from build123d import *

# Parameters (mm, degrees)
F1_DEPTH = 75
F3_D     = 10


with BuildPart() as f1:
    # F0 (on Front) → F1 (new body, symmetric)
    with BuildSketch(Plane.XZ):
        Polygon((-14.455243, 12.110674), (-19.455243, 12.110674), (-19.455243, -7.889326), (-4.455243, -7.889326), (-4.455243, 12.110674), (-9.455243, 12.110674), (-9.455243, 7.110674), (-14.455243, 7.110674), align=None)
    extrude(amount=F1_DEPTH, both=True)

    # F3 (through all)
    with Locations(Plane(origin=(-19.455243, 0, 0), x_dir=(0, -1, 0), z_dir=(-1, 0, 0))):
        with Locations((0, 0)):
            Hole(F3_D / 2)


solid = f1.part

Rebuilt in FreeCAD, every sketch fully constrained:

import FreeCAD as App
import Part
import Sketcher

doc = App.newDocument("Part")
body = doc.addObject("PartDesign::Body", "Body")

# Sketch on XZ plane
sketch1 = body.newObject("Sketcher::SketchObject", "Sketch")
sketch1.AttachmentSupport = (doc.getObject("XZ_Plane"), [""])
sketch1.MapMode = "FlatFace"
sketch1.addGeometry(Part.LineSegment(App.Vector(-14.5, 12.1, 0), App.Vector(-19.5, 12.1, 0)), False)
sketch1.addGeometry(Part.LineSegment(App.Vector(-19.5, 12.1, 0), App.Vector(-19.5, -7.9, 0)), False)
sketch1.addGeometry(Part.LineSegment(App.Vector(-19.5, -7.9, 0), App.Vector(-4.5, -7.9, 0)), False)
sketch1.addGeometry(Part.LineSegment(App.Vector(-4.5, -7.9, 0), App.Vector(-4.5, 12.1, 0)), False)
sketch1.addGeometry(Part.LineSegment(App.Vector(-4.5, 12.1, 0), App.Vector(-9.5, 12.1, 0)), False)
sketch1.addGeometry(Part.LineSegment(App.Vector(-9.5, 12.1, 0), App.Vector(-9.5, 7.1, 0)), False)
sketch1.addGeometry(Part.LineSegment(App.Vector(-9.5, 7.1, 0), App.Vector(-14.5, 7.1, 0)), False)
sketch1.addGeometry(Part.LineSegment(App.Vector(-14.5, 7.1, 0), App.Vector(-14.5, 12.1, 0)), False)
sketch1.addConstraint(Sketcher.Constraint("Coincident", 0, 2, 1, 1))
sketch1.addConstraint(Sketcher.Constraint("Coincident", 1, 2, 2, 1))
sketch1.addConstraint(Sketcher.Constraint("Coincident", 2, 2, 3, 1))
sketch1.addConstraint(Sketcher.Constraint("Coincident", 3, 2, 4, 1))
sketch1.addConstraint(Sketcher.Constraint("Coincident", 4, 2, 5, 1))
sketch1.addConstraint(Sketcher.Constraint("Coincident", 5, 2, 6, 1))
sketch1.addConstraint(Sketcher.Constraint("Coincident", 6, 2, 7, 1))
sketch1.addConstraint(Sketcher.Constraint("Coincident", 7, 2, 0, 1))
sketch1.addConstraint(Sketcher.Constraint("Horizontal", 0))
sketch1.addConstraint(Sketcher.Constraint("Vertical", 1))
sketch1.addConstraint(Sketcher.Constraint("Horizontal", 2))
sketch1.addConstraint(Sketcher.Constraint("Vertical", 3))
sketch1.addConstraint(Sketcher.Constraint("Horizontal", 4))
sketch1.addConstraint(Sketcher.Constraint("Vertical", 5))
sketch1.addConstraint(Sketcher.Constraint("Horizontal", 6))
sketch1.addConstraint(Sketcher.Constraint("Vertical", 7))
sketch1.addConstraint(Sketcher.Constraint("Horizontal", 0, 2, 3, 2))
sketch1.addConstraint(Sketcher.Constraint("Equal", 0, 4))
sketch1.addConstraint(Sketcher.Constraint("Equal", 4, 6))
sketch1.addConstraint(Sketcher.Constraint("Equal", 6, 5))
sketch1.addConstraint(Sketcher.Constraint("DistanceX", 0, 2, 0, 1, 5.0))
sketch1.addConstraint(Sketcher.Constraint("DistanceY", 1, 2, 1, 1, 20.0))
sketch1.addConstraint(Sketcher.Constraint("DistanceX", 0, 2, -1, 1, 19.455243))
sketch1.addConstraint(Sketcher.Constraint("DistanceY", -1, 1, 0, 2, 12.110674))
pad1 = body.newObject("PartDesign::Pad", "Pad")
pad1.Profile = sketch1
pad1.Length = 150
pad1.Midplane = True

# Sketch on YZ plane
sketch2 = body.newObject("Sketcher::SketchObject", "Sketch001")
sketch2.AttachmentSupport = (doc.getObject("YZ_Plane"), [""])
sketch2.MapMode = "FlatFace"
sketch2.AttachmentOffset = App.Placement(App.Vector(0, 0, -19.455243), App.Rotation())
sketch2.addGeometry(Part.Circle(App.Vector(0, 0, 0), App.Vector(0, 0, 1), 5), False)
sketch2.addConstraint(Sketcher.Constraint("Coincident", 0, 3, -1, 1))
sketch2.addConstraint(Sketcher.Constraint("Diameter", 0, 10.0))
doc.recompute()
hole = body.newObject("PartDesign::Hole", "Hole")
hole.Profile = sketch2
hole.ThreadType = "None"
hole.Diameter = 10
hole.DepthType = "ThroughAll"
hole.Reversed = True

doc.recompute()
